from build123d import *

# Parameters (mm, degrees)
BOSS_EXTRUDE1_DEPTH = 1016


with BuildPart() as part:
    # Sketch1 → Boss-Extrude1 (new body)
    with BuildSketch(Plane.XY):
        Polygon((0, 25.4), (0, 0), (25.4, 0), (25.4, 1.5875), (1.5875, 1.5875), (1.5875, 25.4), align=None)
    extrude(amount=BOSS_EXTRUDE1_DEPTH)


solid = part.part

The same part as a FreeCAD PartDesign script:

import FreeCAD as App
import Part
import Sketcher

V = App.Vector
Q = App.Units.Quantity


def add_polygon(sketch, points):
    """Adds a closed chain of lines whose ends are joined by coincident constraints."""
    first, n = sketch.GeometryCount, len(points)
    for a, b in zip(points, points[1:] + points[:1]):
        sketch.addGeometry(Part.LineSegment(App.Vector(*a, 0), App.Vector(*b, 0)), False)
    for i in range(n):
        sketch.addConstraint(Sketcher.Constraint("Coincident", first + i, 2, first + (i + 1) % n, 1))

doc = App.newDocument("Part")
body = doc.addObject("PartDesign::Body", "Body")

# Sketch on XY plane
sketch1 = body.newObject("Sketcher::SketchObject", "Sketch")
sketch1.AttachmentSupport = (doc.getObject("XY_Plane"), [""])
sketch1.MapMode = "FlatFace"
add_polygon(sketch1, [(0, 25.4), (0, 0), (25.4, 0), (25.4, 1.6), (1.6, 1.6), (1.6, 25.4)])  # lines 0-5
sketch1.addConstraint([
    Sketcher.Constraint("Vertical", 0),
    Sketcher.Constraint("Horizontal", 1),
    Sketcher.Constraint("Vertical", 2),
    Sketcher.Constraint("Horizontal", 3),
    Sketcher.Constraint("Vertical", 4),
    Sketcher.Constraint("Horizontal", 5),
    Sketcher.Constraint("Coincident", 0, 2, -1, 1),
    Sketcher.Constraint("Equal", 1, 0),
    Sketcher.Constraint("Equal", 5, 2),
    Sketcher.Constraint("DistanceX", 1, 1, 1, 2, Q("1 in")),
    Sketcher.Constraint("DistanceX", 3, 2, 3, 1, Q("0.9375 in")),
])
pad1 = body.newObject("PartDesign::Pad", "Pad")
pad1.Profile = sketch1
pad1.Length = Q("40 in")

doc.recompute()
